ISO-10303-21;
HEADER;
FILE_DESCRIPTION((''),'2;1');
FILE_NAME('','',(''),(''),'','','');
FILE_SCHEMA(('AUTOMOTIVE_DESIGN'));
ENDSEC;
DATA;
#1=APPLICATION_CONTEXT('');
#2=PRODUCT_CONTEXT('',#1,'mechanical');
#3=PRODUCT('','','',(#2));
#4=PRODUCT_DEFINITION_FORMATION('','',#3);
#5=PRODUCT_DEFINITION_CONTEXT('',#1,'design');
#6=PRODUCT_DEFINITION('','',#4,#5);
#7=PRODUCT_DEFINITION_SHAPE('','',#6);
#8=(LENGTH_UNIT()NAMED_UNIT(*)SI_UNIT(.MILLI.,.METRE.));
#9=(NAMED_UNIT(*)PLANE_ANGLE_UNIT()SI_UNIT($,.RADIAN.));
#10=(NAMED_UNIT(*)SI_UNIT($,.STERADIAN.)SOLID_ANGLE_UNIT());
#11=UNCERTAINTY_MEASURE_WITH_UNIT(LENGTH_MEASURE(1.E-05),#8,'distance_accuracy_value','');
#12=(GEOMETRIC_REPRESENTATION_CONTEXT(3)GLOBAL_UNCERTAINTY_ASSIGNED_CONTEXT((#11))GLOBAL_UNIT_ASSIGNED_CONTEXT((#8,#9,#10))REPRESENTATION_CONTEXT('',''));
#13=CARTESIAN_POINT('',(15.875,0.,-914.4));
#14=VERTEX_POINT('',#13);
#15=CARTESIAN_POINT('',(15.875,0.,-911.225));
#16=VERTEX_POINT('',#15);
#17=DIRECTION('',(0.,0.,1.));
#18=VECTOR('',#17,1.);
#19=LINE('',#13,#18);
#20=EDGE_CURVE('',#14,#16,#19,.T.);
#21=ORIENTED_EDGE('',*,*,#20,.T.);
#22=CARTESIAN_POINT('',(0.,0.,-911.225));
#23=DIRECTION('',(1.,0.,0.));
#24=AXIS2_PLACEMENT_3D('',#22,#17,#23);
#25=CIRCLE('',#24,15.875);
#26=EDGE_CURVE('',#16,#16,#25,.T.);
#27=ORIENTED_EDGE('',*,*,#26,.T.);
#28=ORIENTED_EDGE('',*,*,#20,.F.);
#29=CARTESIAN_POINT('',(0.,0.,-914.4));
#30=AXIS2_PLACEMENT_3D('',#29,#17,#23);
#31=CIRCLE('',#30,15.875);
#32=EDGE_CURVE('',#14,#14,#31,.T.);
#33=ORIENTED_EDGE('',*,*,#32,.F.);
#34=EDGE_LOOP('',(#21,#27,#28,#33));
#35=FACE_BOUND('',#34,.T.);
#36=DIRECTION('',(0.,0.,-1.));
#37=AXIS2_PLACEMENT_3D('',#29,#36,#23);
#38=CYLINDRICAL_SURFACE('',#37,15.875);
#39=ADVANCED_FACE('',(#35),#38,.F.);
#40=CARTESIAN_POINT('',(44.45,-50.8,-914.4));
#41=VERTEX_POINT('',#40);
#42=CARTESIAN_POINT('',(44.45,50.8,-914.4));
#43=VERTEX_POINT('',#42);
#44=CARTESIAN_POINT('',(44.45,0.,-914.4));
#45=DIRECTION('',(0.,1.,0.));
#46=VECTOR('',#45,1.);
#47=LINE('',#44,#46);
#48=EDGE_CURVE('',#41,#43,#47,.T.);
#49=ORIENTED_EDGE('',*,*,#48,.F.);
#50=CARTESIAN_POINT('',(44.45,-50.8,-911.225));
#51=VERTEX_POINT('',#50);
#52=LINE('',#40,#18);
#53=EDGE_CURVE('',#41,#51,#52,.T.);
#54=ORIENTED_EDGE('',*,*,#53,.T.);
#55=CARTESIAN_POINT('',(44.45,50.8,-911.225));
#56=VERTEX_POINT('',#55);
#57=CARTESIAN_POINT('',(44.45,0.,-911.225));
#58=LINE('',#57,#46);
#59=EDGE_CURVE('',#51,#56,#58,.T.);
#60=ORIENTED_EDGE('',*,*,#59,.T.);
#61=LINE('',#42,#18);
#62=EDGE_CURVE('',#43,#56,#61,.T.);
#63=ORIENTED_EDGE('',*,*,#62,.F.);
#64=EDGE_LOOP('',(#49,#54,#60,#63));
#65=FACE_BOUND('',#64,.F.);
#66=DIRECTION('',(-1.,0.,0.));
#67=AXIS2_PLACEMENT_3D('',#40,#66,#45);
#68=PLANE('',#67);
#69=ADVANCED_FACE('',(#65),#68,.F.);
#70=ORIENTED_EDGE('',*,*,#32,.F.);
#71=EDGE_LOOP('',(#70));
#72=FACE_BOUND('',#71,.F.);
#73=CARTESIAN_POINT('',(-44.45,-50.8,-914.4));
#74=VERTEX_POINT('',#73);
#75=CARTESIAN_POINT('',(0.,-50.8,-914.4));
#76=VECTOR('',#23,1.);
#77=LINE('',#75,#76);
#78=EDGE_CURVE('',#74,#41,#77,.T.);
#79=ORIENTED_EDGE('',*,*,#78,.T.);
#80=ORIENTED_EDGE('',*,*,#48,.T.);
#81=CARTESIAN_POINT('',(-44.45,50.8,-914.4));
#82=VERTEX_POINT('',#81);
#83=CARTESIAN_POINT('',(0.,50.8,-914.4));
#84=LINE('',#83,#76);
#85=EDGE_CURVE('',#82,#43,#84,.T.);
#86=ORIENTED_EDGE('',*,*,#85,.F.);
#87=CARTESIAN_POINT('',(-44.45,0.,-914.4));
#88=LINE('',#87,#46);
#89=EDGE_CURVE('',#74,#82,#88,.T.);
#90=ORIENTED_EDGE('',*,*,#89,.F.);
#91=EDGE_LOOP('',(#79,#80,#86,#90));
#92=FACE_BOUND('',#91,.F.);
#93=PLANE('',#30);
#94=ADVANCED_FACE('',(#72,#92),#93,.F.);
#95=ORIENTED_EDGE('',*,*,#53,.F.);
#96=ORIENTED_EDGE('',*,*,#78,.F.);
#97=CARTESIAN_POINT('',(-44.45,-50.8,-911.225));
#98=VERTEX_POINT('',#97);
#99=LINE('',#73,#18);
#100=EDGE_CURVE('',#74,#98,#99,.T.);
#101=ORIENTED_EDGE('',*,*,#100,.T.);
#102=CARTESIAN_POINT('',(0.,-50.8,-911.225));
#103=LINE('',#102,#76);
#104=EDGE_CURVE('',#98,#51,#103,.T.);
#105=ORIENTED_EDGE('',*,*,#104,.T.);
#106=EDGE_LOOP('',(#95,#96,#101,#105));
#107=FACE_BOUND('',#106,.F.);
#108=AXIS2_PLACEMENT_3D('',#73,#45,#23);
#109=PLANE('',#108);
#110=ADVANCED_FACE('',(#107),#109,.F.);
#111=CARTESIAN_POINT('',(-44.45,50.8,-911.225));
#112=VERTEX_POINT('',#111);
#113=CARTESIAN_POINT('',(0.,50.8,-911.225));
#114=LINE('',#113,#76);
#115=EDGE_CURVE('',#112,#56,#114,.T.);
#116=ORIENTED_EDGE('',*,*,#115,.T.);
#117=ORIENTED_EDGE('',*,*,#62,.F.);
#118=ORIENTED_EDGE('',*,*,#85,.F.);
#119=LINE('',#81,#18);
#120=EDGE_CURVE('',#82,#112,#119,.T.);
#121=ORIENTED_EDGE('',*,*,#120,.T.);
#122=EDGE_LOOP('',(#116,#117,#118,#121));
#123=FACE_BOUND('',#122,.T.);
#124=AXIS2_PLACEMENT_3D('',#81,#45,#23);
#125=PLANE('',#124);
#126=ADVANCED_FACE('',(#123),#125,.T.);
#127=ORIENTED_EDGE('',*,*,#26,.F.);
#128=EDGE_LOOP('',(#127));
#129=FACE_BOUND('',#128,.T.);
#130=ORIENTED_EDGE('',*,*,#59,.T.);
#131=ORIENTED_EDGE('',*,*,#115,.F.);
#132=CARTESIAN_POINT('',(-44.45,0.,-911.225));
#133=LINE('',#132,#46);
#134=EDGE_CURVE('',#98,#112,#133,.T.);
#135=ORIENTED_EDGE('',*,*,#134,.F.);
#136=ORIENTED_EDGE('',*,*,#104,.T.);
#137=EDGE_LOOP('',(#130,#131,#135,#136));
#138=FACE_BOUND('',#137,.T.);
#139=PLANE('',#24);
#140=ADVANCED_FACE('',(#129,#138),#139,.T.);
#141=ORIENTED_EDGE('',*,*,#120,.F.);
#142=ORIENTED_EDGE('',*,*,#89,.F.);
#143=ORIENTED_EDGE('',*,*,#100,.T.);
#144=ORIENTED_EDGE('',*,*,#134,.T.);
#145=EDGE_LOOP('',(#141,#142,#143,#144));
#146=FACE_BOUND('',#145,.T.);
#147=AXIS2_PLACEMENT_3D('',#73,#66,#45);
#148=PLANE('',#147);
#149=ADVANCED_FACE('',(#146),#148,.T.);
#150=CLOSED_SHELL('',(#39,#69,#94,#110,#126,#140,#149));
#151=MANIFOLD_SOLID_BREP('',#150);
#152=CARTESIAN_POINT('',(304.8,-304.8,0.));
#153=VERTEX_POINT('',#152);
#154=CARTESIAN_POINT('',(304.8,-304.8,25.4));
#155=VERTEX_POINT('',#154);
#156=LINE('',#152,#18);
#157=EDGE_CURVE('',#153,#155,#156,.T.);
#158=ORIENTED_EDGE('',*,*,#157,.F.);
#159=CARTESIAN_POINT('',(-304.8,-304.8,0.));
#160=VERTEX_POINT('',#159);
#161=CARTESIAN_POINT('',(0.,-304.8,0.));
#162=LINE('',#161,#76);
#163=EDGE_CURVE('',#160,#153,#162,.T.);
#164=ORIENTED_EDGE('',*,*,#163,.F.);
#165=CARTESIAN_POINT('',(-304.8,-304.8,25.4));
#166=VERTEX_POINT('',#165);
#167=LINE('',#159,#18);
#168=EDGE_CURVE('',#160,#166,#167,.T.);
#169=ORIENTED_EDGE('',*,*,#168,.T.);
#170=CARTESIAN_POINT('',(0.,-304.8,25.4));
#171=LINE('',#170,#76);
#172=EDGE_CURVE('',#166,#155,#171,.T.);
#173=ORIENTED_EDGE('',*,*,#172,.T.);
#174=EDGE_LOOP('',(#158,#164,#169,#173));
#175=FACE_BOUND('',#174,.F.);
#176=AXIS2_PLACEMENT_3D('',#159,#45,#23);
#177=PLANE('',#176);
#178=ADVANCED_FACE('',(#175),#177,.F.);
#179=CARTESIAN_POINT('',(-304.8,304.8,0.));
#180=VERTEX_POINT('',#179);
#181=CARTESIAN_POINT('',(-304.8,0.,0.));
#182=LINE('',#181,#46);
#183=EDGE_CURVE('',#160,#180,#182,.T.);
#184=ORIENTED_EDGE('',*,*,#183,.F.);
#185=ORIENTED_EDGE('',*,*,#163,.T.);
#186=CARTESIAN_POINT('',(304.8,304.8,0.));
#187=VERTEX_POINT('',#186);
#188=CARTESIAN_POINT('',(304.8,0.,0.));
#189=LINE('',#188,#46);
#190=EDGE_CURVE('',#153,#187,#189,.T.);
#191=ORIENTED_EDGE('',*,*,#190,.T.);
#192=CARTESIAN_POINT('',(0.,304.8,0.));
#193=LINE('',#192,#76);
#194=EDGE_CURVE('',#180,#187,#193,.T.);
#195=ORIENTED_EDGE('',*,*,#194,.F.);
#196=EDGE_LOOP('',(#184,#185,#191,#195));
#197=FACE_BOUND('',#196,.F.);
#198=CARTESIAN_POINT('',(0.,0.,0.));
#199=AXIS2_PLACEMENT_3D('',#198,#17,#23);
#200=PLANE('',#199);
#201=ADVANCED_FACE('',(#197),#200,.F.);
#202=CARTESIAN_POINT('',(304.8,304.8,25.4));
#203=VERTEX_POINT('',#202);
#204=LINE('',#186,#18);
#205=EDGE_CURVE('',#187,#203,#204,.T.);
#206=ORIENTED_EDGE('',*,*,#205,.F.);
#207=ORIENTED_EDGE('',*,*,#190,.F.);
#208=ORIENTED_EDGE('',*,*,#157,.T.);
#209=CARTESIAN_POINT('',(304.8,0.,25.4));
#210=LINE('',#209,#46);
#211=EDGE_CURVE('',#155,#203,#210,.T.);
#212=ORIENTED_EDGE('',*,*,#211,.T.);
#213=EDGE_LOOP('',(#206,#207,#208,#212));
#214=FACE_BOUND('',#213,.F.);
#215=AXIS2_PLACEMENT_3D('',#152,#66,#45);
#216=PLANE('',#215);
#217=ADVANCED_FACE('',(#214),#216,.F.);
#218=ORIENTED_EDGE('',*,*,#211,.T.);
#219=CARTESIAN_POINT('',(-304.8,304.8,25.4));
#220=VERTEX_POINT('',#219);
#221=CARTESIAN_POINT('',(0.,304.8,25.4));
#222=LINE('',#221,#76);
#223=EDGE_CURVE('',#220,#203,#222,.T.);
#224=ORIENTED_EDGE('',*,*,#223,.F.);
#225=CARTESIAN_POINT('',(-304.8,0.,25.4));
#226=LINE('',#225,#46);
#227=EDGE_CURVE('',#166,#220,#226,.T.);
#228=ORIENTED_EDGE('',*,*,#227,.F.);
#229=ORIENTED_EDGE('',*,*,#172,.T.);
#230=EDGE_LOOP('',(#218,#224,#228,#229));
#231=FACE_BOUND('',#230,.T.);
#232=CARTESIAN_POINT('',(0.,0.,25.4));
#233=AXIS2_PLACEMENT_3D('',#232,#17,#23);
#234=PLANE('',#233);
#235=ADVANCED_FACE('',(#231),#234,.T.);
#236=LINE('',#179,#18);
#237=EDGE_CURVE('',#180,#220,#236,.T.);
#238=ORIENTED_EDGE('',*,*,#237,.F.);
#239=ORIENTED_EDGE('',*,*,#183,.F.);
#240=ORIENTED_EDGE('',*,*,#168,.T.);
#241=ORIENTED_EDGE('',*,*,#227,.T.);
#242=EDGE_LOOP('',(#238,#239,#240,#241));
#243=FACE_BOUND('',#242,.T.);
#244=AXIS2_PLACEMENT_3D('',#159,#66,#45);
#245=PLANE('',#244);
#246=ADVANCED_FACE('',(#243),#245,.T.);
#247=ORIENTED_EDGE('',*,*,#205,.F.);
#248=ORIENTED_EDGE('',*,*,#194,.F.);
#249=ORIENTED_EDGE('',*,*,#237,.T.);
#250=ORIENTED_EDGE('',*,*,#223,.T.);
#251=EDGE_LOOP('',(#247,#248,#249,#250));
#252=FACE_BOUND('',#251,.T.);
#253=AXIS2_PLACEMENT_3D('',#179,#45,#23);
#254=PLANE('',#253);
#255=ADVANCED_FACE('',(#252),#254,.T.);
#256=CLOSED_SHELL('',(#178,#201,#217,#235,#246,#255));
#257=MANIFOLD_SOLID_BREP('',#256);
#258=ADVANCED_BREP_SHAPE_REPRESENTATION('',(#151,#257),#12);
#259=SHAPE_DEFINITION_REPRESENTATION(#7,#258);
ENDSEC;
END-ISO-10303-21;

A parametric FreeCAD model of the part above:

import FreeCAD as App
import Part
import Sketcher
from FreeCAD import Vector
Q = App.Units.Quantity


def add_polygon(sketch, points):
    """Adds a closed chain of lines whose ends are joined by coincident constraints."""
    first, n = sketch.GeometryCount, len(points)
    for a, b in zip(points, points[1:] + points[:1]):
        sketch.addGeometry(Part.LineSegment(App.Vector(*a, 0), App.Vector(*b, 0)), False)
    for i in range(n):
        sketch.addConstraint(Sketcher.Constraint("Coincident", first + i, 2, first + (i + 1) % n, 1))

doc = App.newDocument("Part")
body = doc.addObject("PartDesign::Body", "Body")

sketch1 = body.newObject("Sketcher::SketchObject", "Sketch")
sketch1.AttachmentSupport = (doc.getObject("XY_Plane"), [""])
sketch1.MapMode = "FlatFace"
add_polygon(sketch1, [(-305, 305), (-305, -305), (305, -305), (305, 305)])
sketch1.addConstraint([
    Sketcher.Constraint("Vertical", 0),
    Sketcher.Constraint("Horizontal", 1),
    Sketcher.Constraint("Vertical", 2),
    Sketcher.Constraint("Horizontal", 3),
    Sketcher.Constraint("Symmetric", 0, 2, 2, 2, -1, 1),
    Sketcher.Constraint("Equal", 3, 0),
    Sketcher.Constraint("DistanceX", 1, 1, 1, 2, Q("24 in")),
])
pad1 = body.newObject("PartDesign::Pad", "Pad")
pad1.Profile = sketch1
pad1.Length = Q("1 in")
body2 = doc.addObject("PartDesign::Body", "Body001")

sketch2 = body2.newObject("Sketcher::SketchObject", "Sketch001")
sketch2.AttachmentSupport = (doc.getObject("XY_Plane001"), [""])
sketch2.MapMode = "FlatFace"
sketch2.AttachmentOffset = App.Placement(Vector(0, 0, -36 * 25.4), App.Rotation())
add_polygon(sketch2, [(-44, 51), (-44, -51), (44, -51), (44, 51)])
sketch2.addGeometry(Part.Circle(Vector(0, 0, 0), Vector(0, 0, 1), 16), False)
sketch2.addConstraint([
    Sketcher.Constraint("Vertical", 0),
    Sketcher.Constraint("Horizontal", 1),
    Sketcher.Constraint("Vertical", 2),
    Sketcher.Constraint("Horizontal", 3),
    Sketcher.Constraint("Coincident", 4, 3, -1, 1),
    Sketcher.Constraint("Symmetric", 0, 2, 2, 2, -1, 1),
    Sketcher.Constraint("Diameter", 4, Q("1.25 in")),
    Sketcher.Constraint("DistanceY", 0, 2, 0, 1, Q("4 in")),
    Sketcher.Constraint("DistanceX", 1, 1, 1, 2, Q("3.5 in")),
])
pad2 = body2.newObject("PartDesign::Pad", "Pad001")
pad2.Profile = sketch2
pad2.Length = Q("0.125 in")

doc.recompute()
